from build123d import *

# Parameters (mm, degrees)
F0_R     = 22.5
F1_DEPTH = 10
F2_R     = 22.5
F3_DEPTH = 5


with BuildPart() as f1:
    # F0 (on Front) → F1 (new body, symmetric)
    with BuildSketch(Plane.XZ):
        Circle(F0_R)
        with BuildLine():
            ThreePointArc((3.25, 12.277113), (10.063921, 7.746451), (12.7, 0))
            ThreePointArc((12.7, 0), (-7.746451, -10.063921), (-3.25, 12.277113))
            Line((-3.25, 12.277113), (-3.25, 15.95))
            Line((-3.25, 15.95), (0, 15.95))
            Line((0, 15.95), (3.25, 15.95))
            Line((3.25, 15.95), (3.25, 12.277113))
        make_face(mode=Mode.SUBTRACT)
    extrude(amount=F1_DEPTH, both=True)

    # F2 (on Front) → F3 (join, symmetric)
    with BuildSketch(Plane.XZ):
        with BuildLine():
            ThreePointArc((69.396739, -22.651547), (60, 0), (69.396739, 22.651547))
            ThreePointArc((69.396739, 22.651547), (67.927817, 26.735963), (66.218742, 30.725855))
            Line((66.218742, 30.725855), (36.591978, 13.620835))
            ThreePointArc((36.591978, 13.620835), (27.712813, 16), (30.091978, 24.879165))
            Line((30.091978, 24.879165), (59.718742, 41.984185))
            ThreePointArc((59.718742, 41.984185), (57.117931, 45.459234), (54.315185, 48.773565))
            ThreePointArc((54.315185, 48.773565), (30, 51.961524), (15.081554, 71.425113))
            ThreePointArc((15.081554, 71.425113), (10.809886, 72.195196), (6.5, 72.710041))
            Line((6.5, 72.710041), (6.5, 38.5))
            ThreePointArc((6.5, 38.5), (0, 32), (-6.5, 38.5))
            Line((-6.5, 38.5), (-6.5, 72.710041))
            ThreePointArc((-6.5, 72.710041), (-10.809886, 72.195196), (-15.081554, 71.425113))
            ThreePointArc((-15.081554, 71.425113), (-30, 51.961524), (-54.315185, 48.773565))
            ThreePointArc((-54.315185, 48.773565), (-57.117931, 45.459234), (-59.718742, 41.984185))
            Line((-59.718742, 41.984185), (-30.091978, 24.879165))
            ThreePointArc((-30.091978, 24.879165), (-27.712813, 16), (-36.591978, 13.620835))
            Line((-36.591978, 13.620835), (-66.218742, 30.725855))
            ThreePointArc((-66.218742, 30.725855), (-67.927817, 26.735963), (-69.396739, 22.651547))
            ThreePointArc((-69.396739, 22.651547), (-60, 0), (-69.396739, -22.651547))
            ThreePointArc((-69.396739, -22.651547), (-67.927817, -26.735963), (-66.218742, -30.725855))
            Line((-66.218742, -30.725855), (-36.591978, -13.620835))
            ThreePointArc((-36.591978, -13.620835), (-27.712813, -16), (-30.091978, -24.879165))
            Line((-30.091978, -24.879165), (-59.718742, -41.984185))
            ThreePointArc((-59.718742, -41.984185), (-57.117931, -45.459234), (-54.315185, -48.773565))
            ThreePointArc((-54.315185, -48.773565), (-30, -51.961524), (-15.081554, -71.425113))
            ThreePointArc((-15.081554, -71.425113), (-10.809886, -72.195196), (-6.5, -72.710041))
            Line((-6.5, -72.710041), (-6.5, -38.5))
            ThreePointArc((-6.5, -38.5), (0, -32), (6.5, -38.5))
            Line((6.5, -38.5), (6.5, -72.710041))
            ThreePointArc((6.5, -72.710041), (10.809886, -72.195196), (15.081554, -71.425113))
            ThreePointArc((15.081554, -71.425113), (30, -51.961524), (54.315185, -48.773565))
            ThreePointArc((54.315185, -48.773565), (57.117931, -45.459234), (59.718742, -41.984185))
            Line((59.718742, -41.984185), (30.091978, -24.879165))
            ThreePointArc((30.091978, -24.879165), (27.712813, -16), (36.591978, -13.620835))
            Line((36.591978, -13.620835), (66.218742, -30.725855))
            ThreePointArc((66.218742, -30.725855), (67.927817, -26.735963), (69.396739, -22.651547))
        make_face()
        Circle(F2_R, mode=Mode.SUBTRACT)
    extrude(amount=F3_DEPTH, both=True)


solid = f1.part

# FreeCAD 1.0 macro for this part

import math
import FreeCAD as App
import Part
import Sketcher
Q = App.Units.Quantity

doc = App.newDocument("Part")
body = doc.addObject("PartDesign::Body", "Body")

# Sketch on XZ plane
sketch1 = doc.addObject("Sketcher::SketchObject", "Sketch")
body.addObject(sketch1)
sketch1.AttachmentSupport = (doc.XZ_Plane, [""])
sketch1.MapMode = "FlatFace"
sketch1.addGeometry([
    Part.Circle(App.Vector(0, 0, 0), App.Vector(0, 0, 1), 22.5),  # 0
    Part.LineSegment(App.Vector(3.2, 15.9, 0), App.Vector(3.2, 12.3, 0)),  # 1
    Part.ArcOfCircle(Part.Circle(App.Vector(0, 0, 0), App.Vector(0, 0, 1), 12.7), math.radians(0), math.radians(75)),  # 2
    Part.ArcOfCircle(Part.Circle(App.Vector(0, 0, 0), App.Vector(0, 0, 1), 12.7), math.radians(105), math.radians(360)),  # 3
    Part.LineSegment(App.Vector(-3.2, 12.3, 0), App.Vector(-3.2, 15.9, 0)),  # 4
    Part.LineSegment(App.Vector(-3.2, 15.9, 0), App.Vector(3.2, 15.9, 0)),  # 5
], False)
sketch1.addConstraint([
    Sketcher.Constraint("Coincident", 1, 2, 2, 2),
    Sketcher.Constraint("Tangent", 2, 1, 3, 2),
    Sketcher.Constraint("Coincident", 3, 1, 4, 1),
    Sketcher.Constraint("Coincident", 4, 2, 5, 1),
    Sketcher.Constraint("Coincident", 5, 2, 1, 1),
    Sketcher.Constraint("Vertical", 1),
    Sketcher.Constraint("Vertical", 4),
    Sketcher.Constraint("Horizontal", 5),
    Sketcher.Constraint("Coincident", 0, 3, -1, 1),
    Sketcher.Constraint("Coincident", 2, 3, -1, 1),
    Sketcher.Constraint("Equal", 2, 3),
    Sketcher.Constraint("PointOnObject", 2, 1, -1),
    Sketcher.Constraint("Horizontal", 1, 2, 3, 1),
    Sketcher.Constraint("Diameter", 0, 45.0),
    Sketcher.Constraint("Radius", 2, 12.699999),
    Sketcher.Constraint("DistanceX", 5, 1, 5, 2, 6.5),
    Sketcher.Constraint("DistanceY", -1, 1, 4, 2, 15.95),
])
pad1 = doc.addObject("PartDesign::Pad", "Pad")
body.addObject(pad1)
pad1.Profile = sketch1
pad1.Length = 20
pad1.Midplane = True

# Sketch on XZ plane
sketch2 = doc.addObject("Sketcher::SketchObject", "Sketch001")
body.addObject(sketch2)
sketch2.AttachmentSupport = (doc.XZ_Plane, [""])
sketch2.MapMode = "FlatFace"
sketch2.addGeometry([
    Part.ArcOfCircle(Part.Circle(App.Vector(91.999999, 0, 0), App.Vector(0, 0, 1), 31.999999), math.radians(134.938866), math.radians(225.061134)),  # 0
    Part.ArcOfCircle(Part.Circle(App.Vector(0.000283, 0.000111, 0), App.Vector(0, 0, 1), 72.999696), math.radians(18.077006), math.radians(24.89157)),  # 1
    Part.LineSegment(App.Vector(66.218742, 30.725855, 0), App.Vector(36.591978, 13.620835, 0)),  # 2
    Part.ArcOfCircle(Part.Circle(App.Vector(33.341978, 19.25, 0), App.Vector(0, 0, 1), 6.5), math.radians(120.000001), math.radians(300.000001)),  # 3
    Part.LineSegment(App.Vector(30.091978, 24.879165, 0), App.Vector(59.718742, 41.984185, 0)),  # 4
    Part.ArcOfCircle(Part.Circle(App.Vector(0.000142, 0.000115, 0), App.Vector(0, 0, 1), 72.999817), math.radians(35.108434), math.radians(41.922987)),  # 5
    Part.ArcOfCircle(Part.Circle(App.Vector(46, 79.674337, 0), App.Vector(0, 0, 1), 32), math.radians(-165.061135), math.radians(-74.938866)),  # 6
    Part.ArcOfCircle(Part.Circle(App.Vector(-0.000053, -0.000342, 0), App.Vector(0, 0, 1), 73.000346), math.radians(78.077035), math.radians(84.891538)),  # 7
    Part.LineSegment(App.Vector(6.5, 72.710041, 0), App.Vector(6.5, 38.5, 0)),  # 8
    Part.ArcOfCircle(Part.Circle(App.Vector(0, 38.5, 0), App.Vector(0, 0, 1), 6.5), math.radians(180), math.radians(360)),  # 9
    Part.LineSegment(App.Vector(-6.5, 38.5, 0), App.Vector(-6.5, 72.710041, 0)),  # 10
    Part.ArcOfCircle(Part.Circle(App.Vector(0.000053, -0.000342, 0), App.Vector(0, 0, 1), 73.000346), math.radians(95.108462), math.radians(101.922965)),  # 11
    Part.ArcOfCircle(Part.Circle(App.Vector(-46, 79.674337, 0), App.Vector(0, 0, 1), 32), math.radians(-105.061134), math.radians(-14.938865)),  # 12
    Part.ArcOfCircle(Part.Circle(App.Vector(-0.000142, 0.000115, 0), App.Vector(0, 0, 1), 72.999817), math.radians(138.077013), math.radians(144.891566)),  # 13
    Part.LineSegment(App.Vector(-59.718742, 41.984185, 0), App.Vector(-30.091978, 24.879165, 0)),  # 14
    Part.ArcOfCircle(Part.Circle(App.Vector(-33.341978, 19.25, 0), App.Vector(0, 0, 1), 6.5), math.radians(-120.000001), math.radians(59.999999)),  # 15
    Part.LineSegment(App.Vector(-36.591978, 13.620835, 0), App.Vector(-66.218742, 30.725855, 0)),  # 16
    Part.ArcOfCircle(Part.Circle(App.Vector(-0.000283, 0.000111, 0), App.Vector(0, 0, 1), 72.999696), math.radians(155.10843), math.radians(161.922994)),  # 17
    Part.ArcOfCircle(Part.Circle(App.Vector(-91.999999, 0, 0), App.Vector(0, 0, 1), 31.999999), math.radians(-45.061134), math.radians(45.061134)),  # 18
    Part.ArcOfCircle(Part.Circle(App.Vector(-0.000283, -0.000111, 0), App.Vector(0, 0, 1), 72.999696), math.radians(-161.922994), math.radians(-155.10843)),  # 19
    Part.LineSegment(App.Vector(-66.218742, -30.725855, 0), App.Vector(-36.591978, -13.620835, 0)),  # 20
    Part.ArcOfCircle(Part.Circle(App.Vector(-33.341978, -19.25, 0), App.Vector(0, 0, 1), 6.5), math.radians(-59.999999), math.radians(120.000001)),  # 21
    Part.LineSegment(App.Vector(-30.091978, -24.879165, 0), App.Vector(-59.718742, -41.984185, 0)),  # 22
    Part.ArcOfCircle(Part.Circle(App.Vector(-0.000142, -0.000115, 0), App.Vector(0, 0, 1), 72.999817), math.radians(-144.891566), math.radians(-138.077013)),  # 23
    Part.ArcOfCircle(Part.Circle(App.Vector(-46, -79.674337, 0), App.Vector(0, 0, 1), 32), math.radians(14.938865), math.radians(105.061134)),  # 24
    Part.ArcOfCircle(Part.Circle(App.Vector(0.000053, 0.000342, 0), App.Vector(0, 0, 1), 73.000346), math.radians(-101.922965), math.radians(-95.108462)),  # 25
    Part.LineSegment(App.Vector(-6.5, -72.710041, 0), App.Vector(-6.5, -38.5, 0)),  # 26
    Part.ArcOfCircle(Part.Circle(App.Vector(0, -38.5, 0), App.Vector(0, 0, 1), 6.5), math.radians(0), math.radians(180)),  # 27
    Part.LineSegment(App.Vector(6.5, -38.5, 0), App.Vector(6.5, -72.710041, 0)),  # 28
    Part.ArcOfCircle(Part.Circle(App.Vector(-0.000053, 0.000342, 0), App.Vector(0, 0, 1), 73.000346), math.radians(-84.891538), math.radians(-78.077035)),  # 29
    Part.ArcOfCircle(Part.Circle(App.Vector(46, -79.674337, 0), App.Vector(0, 0, 1), 32), math.radians(74.938866), math.radians(165.061135)),  # 30
    Part.ArcOfCircle(Part.Circle(App.Vector(0.000142, -0.000115, 0), App.Vector(0, 0, 1), 72.999817), math.radians(-41.922987), math.radians(-35.108434)),  # 31
    Part.LineSegment(App.Vector(59.718742, -41.984185, 0), App.Vector(30.091978, -24.879165, 0)),  # 32
    Part.ArcOfCircle(Part.Circle(App.Vector(33.341978, -19.25, 0), App.Vector(0, 0, 1), 6.5), math.radians(59.999999), math.radians(239.999999)),  # 33
    Part.LineSegment(App.Vector(36.591978, -13.620835, 0), App.Vector(66.218742, -30.725855, 0)),  # 34
    Part.ArcOfCircle(Part.Circle(App.Vector(0.000283, -0.000111, 0), App.Vector(0, 0, 1), 72.999696), math.radians(-24.89157), math.radians(-18.077006)),  # 35
    Part.Circle(App.Vector(0, 0, 0), App.Vector(0, 0, 1), 22.5),  # 36
], False)
sketch2.addConstraint([
    Sketcher.Constraint("Coincident", 0, 1, 1, 1),
    Sketcher.Constraint("Coincident", 1, 2, 2, 1),
    Sketcher.Constraint("Tangent", 2, 2, 3, 2),
    Sketcher.Constraint("Tangent", 3, 1, 4, 1),
    Sketcher.Constraint("Coincident", 4, 2, 5, 1),
    Sketcher.Constraint("Coincident", 5, 2, 6, 2),
    Sketcher.Constraint("Coincident", 6, 1, 7, 1),
    Sketcher.Constraint("Coincident", 7, 2, 8, 1),
    Sketcher.Constraint("Tangent", 8, 2, 9, 2),
    Sketcher.Constraint("Tangent", 9, 1, 10, 1),
    Sketcher.Constraint("Coincident", 10, 2, 11, 1),
    Sketcher.Constraint("Coincident", 11, 2, 12, 2),
    Sketcher.Constraint("Coincident", 12, 1, 13, 1),
    Sketcher.Constraint("Coincident", 13, 2, 14, 1),
    Sketcher.Constraint("Tangent", 14, 2, 15, 2),
    Sketcher.Constraint("Tangent", 15, 1, 16, 1),
    Sketcher.Constraint("Coincident", 16, 2, 17, 1),
    Sketcher.Constraint("Coincident", 17, 2, 18, 2),
    Sketcher.Constraint("Coincident", 18, 1, 19, 1),
    Sketcher.Constraint("Coincident", 19, 2, 20, 1),
    Sketcher.Constraint("Tangent", 20, 2, 21, 2),
    Sketcher.Constraint("Tangent", 21, 1, 22, 1),
    Sketcher.Constraint("Coincident", 22, 2, 23, 1),
    Sketcher.Constraint("Coincident", 23, 2, 24, 2),
    Sketcher.Constraint("Coincident", 24, 1, 25, 1),
    Sketcher.Constraint("Coincident", 25, 2, 26, 1),
    Sketcher.Constraint("Tangent", 26, 2, 27, 2),
    Sketcher.Constraint("Tangent", 27, 1, 28, 1),
    Sketcher.Constraint("Coincident", 28, 2, 29, 1),
    Sketcher.Constraint("Coincident", 29, 2, 30, 2),
    Sketcher.Constraint("Coincident", 30, 1, 31, 1),
    Sketcher.Constraint("Coincident", 31, 2, 32, 1),
    Sketcher.Constraint("Tangent", 32, 2, 33, 2),
    Sketcher.Constraint("Tangent", 33, 1, 34, 1),
    Sketcher.Constraint("Coincident", 34, 2, 35, 1),
    Sketcher.Constraint("Coincident", 35, 2, 0, 2),
    Sketcher.Constraint("Vertical", 8),
    Sketcher.Constraint("Vertical", 10),
    Sketcher.Constraint("Vertical", 26),
    Sketcher.Constraint("Vertical", 28),
    Sketcher.Constraint("Coincident", 36, 3, -1, 1),
    Sketcher.Constraint("Equal", 0, 6),
    Sketcher.Constraint("Equal", 3, 9),
    Sketcher.Constraint("Equal", 7, 11),
    Sketcher.Constraint("Equal", 6, 12),
    Sketcher.Constraint("Equal", 5, 13),
    Sketcher.Constraint("Equal", 9, 15),
    Sketcher.Constraint("Equal", 1, 17),
    Sketcher.Constraint("Equal", 12, 18),
    Sketcher.Constraint("Equal", 17, 19),
    Sketcher.Constraint("Equal", 15, 21),
    Sketcher.Constraint("Equal", 13, 23),
    Sketcher.Constraint("Equal", 18, 24),
    Sketcher.Constraint("Equal", 11, 25),
    Sketcher.Constraint("Equal", 21, 27),
    Sketcher.Constraint("Equal", 25, 29),
    Sketcher.Constraint("Equal", 24, 30),
    Sketcher.Constraint("Equal", 23, 31),
    Sketcher.Constraint("Equal", 27, 33),
    Sketcher.Constraint("Equal", 19, 35),
    Sketcher.Constraint("Symmetric", 0, 3, 18, 3, -1, 1),
    Sketcher.Constraint("Symmetric", 1, 3, 19, 3, -1, 1),
    Sketcher.Constraint("Symmetric", 3, 3, 21, 3, -1, 1),
    Sketcher.Constraint("Symmetric", 5, 3, 23, 3, -1, 1),
    Sketcher.Constraint("Symmetric", 6, 3, 24, 3, -1, 1),
    Sketcher.Constraint("Symmetric", 7, 3, 25, 3, -1, 1),
    Sketcher.Constraint("Symmetric", 9, 3, 27, 3, -1, 1),
    Sketcher.Constraint("Symmetric", 11, 3, 29, 3, -1, 1),
    Sketcher.Constraint("Symmetric", 12, 3, 30, 3, -1, 1),
    Sketcher.Constraint("Symmetric", 13, 3, 31, 3, -1, 1),
    Sketcher.Constraint("Symmetric", 15, 3, 33, 3, -1, 1),
    Sketcher.Constraint("Symmetric", 17, 3, 35, 3, -1, 1),
    Sketcher.Constraint("Symmetric", 7, 3, 11, 3, -2),
    Sketcher.Constraint("Symmetric", 6, 3, 12, 3, -2),
    Sketcher.Constraint("Symmetric", 5, 3, 13, 3, -2),
    Sketcher.Constraint("Symmetric", 3, 3, 15, 3, -2),
    Sketcher.Constraint("Symmetric", 1, 3, 17, 3, -2),
    Sketcher.Constraint("PointOnObject", 0, 3, -1),
    Sketcher.Constraint("PointOnObject", 9, 3, -2),
    Sketcher.Constraint("Parallel", 2, 4),
    Sketcher.Constraint("Parallel", 14, 16),
    Sketcher.Constraint("Parallel", 4, 20),
    Sketcher.Constraint("Parallel", 20, 22),
    Sketcher.Constraint("Parallel", 16, 32),
    Sketcher.Constraint("Parallel", 32, 34),
    Sketcher.Constraint("Horizontal", 4, 2, 13, 2),
    Sketcher.Constraint("Equal", 2, 4),
    Sketcher.Constraint("Diameter", 36, 45.0),
    Sketcher.Constraint("Radius", 0, 31.999999),
    Sketcher.Constraint("Radius", 3, 6.5),
    Sketcher.Constraint("Angle", 2, Q("-150 deg")),
    Sketcher.Constraint("DistanceX", -1, 1, 0, 3, 91.999999),
    Sketcher.Constraint("DistanceX", -1, 1, 6, 3, 46.0),
    Sketcher.Constraint("DistanceY", -1, 1, 9, 3, 38.5),
    Sketcher.Constraint("DistanceY", -1, 1, 3, 3, 19.25),
    Sketcher.Constraint("Radius", 1, 72.999696),
    Sketcher.Constraint("Radius", 5, 72.999817),
    Sketcher.Constraint("Radius", 7, 73.000346),
    Sketcher.Constraint("DistanceY", 8, 2, 8, 1, 34.210041),
    Sketcher.Constraint("Distance", 2, 34.21004),
    Sketcher.Constraint("DistanceY", -1, 1, 1, 3, 0.000111),
    Sketcher.Constraint("DistanceX", -1, 1, 0, 1, 69.396739),
    Sketcher.Constraint("DistanceX", -1, 1, 5, 3, 0.000142),
    Sketcher.Constraint("DistanceY", -1, 1, 6, 3, 79.674337),
    Sketcher.Constraint("DistanceY", 7, 3, -1, 1, 0.000342),
])
pad2 = doc.addObject("PartDesign::Pad", "Pad001")
body.addObject(pad2)
pad2.Profile = sketch2
pad2.Length = 10
pad2.Midplane = True

doc.recompute()
